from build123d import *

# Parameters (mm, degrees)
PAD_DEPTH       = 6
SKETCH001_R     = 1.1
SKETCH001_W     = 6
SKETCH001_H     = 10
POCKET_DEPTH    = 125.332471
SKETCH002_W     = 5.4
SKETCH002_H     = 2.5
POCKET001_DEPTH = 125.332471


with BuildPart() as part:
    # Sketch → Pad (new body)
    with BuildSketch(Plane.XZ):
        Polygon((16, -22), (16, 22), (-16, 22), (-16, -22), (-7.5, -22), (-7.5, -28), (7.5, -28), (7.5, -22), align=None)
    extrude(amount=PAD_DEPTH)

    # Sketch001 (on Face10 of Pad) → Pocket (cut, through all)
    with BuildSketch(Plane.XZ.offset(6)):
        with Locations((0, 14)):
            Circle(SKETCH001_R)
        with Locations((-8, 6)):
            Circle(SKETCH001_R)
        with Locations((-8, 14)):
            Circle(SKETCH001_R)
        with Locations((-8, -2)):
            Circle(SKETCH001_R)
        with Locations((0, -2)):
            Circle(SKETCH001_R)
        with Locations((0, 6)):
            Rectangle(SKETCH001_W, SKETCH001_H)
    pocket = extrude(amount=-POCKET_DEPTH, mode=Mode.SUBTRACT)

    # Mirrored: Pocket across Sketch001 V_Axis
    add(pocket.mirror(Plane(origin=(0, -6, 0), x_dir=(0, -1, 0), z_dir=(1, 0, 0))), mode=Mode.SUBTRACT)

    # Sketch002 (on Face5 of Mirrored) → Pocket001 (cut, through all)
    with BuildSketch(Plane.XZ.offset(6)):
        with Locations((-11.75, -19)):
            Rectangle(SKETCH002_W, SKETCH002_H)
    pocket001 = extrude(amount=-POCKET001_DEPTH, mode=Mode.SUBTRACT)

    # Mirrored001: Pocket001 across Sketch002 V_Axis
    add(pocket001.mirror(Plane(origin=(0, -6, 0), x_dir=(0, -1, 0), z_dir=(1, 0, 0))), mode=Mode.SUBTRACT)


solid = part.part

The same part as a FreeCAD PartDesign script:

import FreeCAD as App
import Part
import Sketcher

V = App.Vector

doc = App.newDocument("Part")
body = doc.addObject("PartDesign::Body", "Body")

# Sketch on XZ plane
sketch1 = body.newObject("Sketcher::SketchObject", "Sketch")
sketch1.AttachmentSupport = (doc.getObject("XZ_Plane"), [""])
sketch1.MapMode = "FlatFace"
sketch1.addGeometry(Part.LineSegment(V(16, -22, 0), V(16, 22, 0)), False)
sketch1.addGeometry(Part.LineSegment(V(16, 22, 0), V(-16, 22, 0)), False)
sketch1.addGeometry(Part.LineSegment(V(-16, 22, 0), V(-16, -22, 0)), False)
sketch1.addGeometry(Part.LineSegment(V(-16, -22, 0), V(-8, -22, 0)), False)
sketch1.addGeometry(Part.LineSegment(V(-8, -22, 0), V(-8, -28, 0)), False)
sketch1.addGeometry(Part.LineSegment(V(-8, -28, 0), V(8, -28, 0)), False)
sketch1.addGeometry(Part.LineSegment(V(8, -28, 0), V(8, -22, 0)), False)
sketch1.addGeometry(Part.LineSegment(V(8, -22, 0), V(16, -22, 0)), False)
sketch1.addConstraint(Sketcher.Constraint("Coincident", 0, 2, 1, 1))
sketch1.addConstraint(Sketcher.Constraint("Coincident", 1, 2, 2, 1))
sketch1.addConstraint(Sketcher.Constraint("Coincident", 2, 2, 3, 1))
sketch1.addConstraint(Sketcher.Constraint("Coincident", 3, 2, 4, 1))
sketch1.addConstraint(Sketcher.Constraint("Coincident", 4, 2, 5, 1))
sketch1.addConstraint(Sketcher.Constraint("Coincident", 5, 2, 6, 1))
sketch1.addConstraint(Sketcher.Constraint("Coincident", 6, 2, 7, 1))
sketch1.addConstraint(Sketcher.Constraint("Coincident", 7, 2, 0, 1))
sketch1.addConstraint(Sketcher.Constraint("Vertical", 0))
sketch1.addConstraint(Sketcher.Constraint("Horizontal", 1))
sketch1.addConstraint(Sketcher.Constraint("Vertical", 2))
sketch1.addConstraint(Sketcher.Constraint("Horizontal", 3))
sketch1.addConstraint(Sketcher.Constraint("Vertical", 4))
sketch1.addConstraint(Sketcher.Constraint("Horizontal", 5))
sketch1.addConstraint(Sketcher.Constraint("Vertical", 6))
sketch1.addConstraint(Sketcher.Constraint("Horizontal", 7))
sketch1.addConstraint(Sketcher.Constraint("Symmetric", 0, 2, 2, 2, -1, 1))
sketch1.addConstraint(Sketcher.Constraint("Symmetric", 3, 2, 6, 2, -2))
sketch1.addConstraint(Sketcher.Constraint("DistanceX", 1, 2, 1, 1, 32.0))
sketch1.addConstraint(Sketcher.Constraint("DistanceX", 5, 1, 5, 2, 15.0))
sketch1.addConstraint(Sketcher.Constraint("DistanceY", 0, 1, 0, 2, 44.0))
sketch1.addConstraint(Sketcher.Constraint("DistanceY", 4, 2, 4, 1, 6.0))
pad1 = body.newObject("PartDesign::Pad", "Pad")
pad1.Profile = sketch1
pad1.Length = 6

# Sketch on XZ plane
sketch2 = body.newObject("Sketcher::SketchObject", "Sketch001")
sketch2.AttachmentSupport = (doc.getObject("XZ_Plane"), [""])
sketch2.MapMode = "FlatFace"
sketch2.AttachmentOffset = App.Placement(V(0, 0, 6), App.Rotation())
sketch2.addGeometry(Part.Circle(V(0, 14, 0), V(0, 0, 1), 1.1), False)
sketch2.addGeometry(Part.Circle(V(-8, 6, 0), V(0, 0, 1), 1.1), False)
sketch2.addGeometry(Part.Circle(V(-8, 14, 0), V(0, 0, 1), 1.1), False)
sketch2.addGeometry(Part.Circle(V(-8, -2, 0), V(0, 0, 1), 1.1), False)
sketch2.addGeometry(Part.Circle(V(0, -2, 0), V(0, 0, 1), 1.1), False)
sketch2.addGeometry(Part.LineSegment(V(-3, 11, 0), V(-3, 1, 0)), False)
sketch2.addGeometry(Part.LineSegment(V(-3, 1, 0), V(3, 1, 0)), False)
sketch2.addGeometry(Part.LineSegment(V(3, 1, 0), V(3, 11, 0)), False)
sketch2.addGeometry(Part.LineSegment(V(3, 11, 0), V(-3, 11, 0)), False)
sketch2.addConstraint(Sketcher.Constraint("Coincident", 5, 2, 6, 1))
sketch2.addConstraint(Sketcher.Constraint("Coincident", 6, 2, 7, 1))
sketch2.addConstraint(Sketcher.Constraint("Coincident", 7, 2, 8, 1))
sketch2.addConstraint(Sketcher.Constraint("Coincident", 8, 2, 5, 1))
sketch2.addConstraint(Sketcher.Constraint("Vertical", 5))
sketch2.addConstraint(Sketcher.Constraint("Horizontal", 6))
sketch2.addConstraint(Sketcher.Constraint("Vertical", 7))
sketch2.addConstraint(Sketcher.Constraint("Horizontal", 8))
sketch2.addConstraint(Sketcher.Constraint("Equal", 0, 1))
sketch2.addConstraint(Sketcher.Constraint("Equal", 1, 2))
sketch2.addConstraint(Sketcher.Constraint("Equal", 2, 3))
sketch2.addConstraint(Sketcher.Constraint("Equal", 3, 4))
sketch2.addConstraint(Sketcher.Constraint("PointOnObject", 0, 3, -2))
sketch2.addConstraint(Sketcher.Constraint("PointOnObject", 4, 3, -2))
sketch2.addConstraint(Sketcher.Constraint("Horizontal", 0, 3, 2, 3))
sketch2.addConstraint(Sketcher.Constraint("Horizontal", 3, 3, 4, 3))
sketch2.addConstraint(Sketcher.Constraint("Vertical", 1, 3, 2, 3))
sketch2.addConstraint(Sketcher.Constraint("Vertical", 2, 3, 3, 3))
sketch2.addConstraint(Sketcher.Constraint("Diameter", 0, 2.2))
sketch2.addConstraint(Sketcher.Constraint("DistanceX", 6, 1, 6, 2, 6.0))
sketch2.addConstraint(Sketcher.Constraint("DistanceY", 5, 2, 5, 1, 10.0))
sketch2.addConstraint(Sketcher.Constraint("DistanceY", -1, 1, 0, 3, 14.0))
sketch2.addConstraint(Sketcher.Constraint("DistanceX", 1, 3, -1, 1, 8.0))
sketch2.addConstraint(Sketcher.Constraint("DistanceY", -1, 1, 1, 3, 6.0))
sketch2.addConstraint(Sketcher.Constraint("DistanceY", 3, 3, -1, 1, 2.0))
sketch2.addConstraint(Sketcher.Constraint("DistanceX", 5, 2, -1, 1, 3.0))
sketch2.addConstraint(Sketcher.Constraint("DistanceY", -1, 1, 5, 2, 1.0))
pocket1 = body.newObject("PartDesign::Pocket", "Pocket")
pocket1.Profile = sketch2
pocket1.Type = "ThroughAll"
doc.recompute()

mirrored = body.newObject("PartDesign::Mirrored", "Mirrored")
mirrored.Originals = [pocket1]
mirrored.MirrorPlane = (doc.getObject("YZ_Plane"), [""])
body.Tip = mirrored

# Sketch on XZ plane
sketch3 = body.newObject("Sketcher::SketchObject", "Sketch002")
sketch3.AttachmentSupport = (doc.getObject("XZ_Plane"), [""])
sketch3.MapMode = "FlatFace"
sketch3.AttachmentOffset = App.Placement(V(0, 0, 6), App.Rotation())
sketch3.addGeometry(Part.LineSegment(V(-14.4, -17.8, 0), V(-14.4, -20.2, 0)), False)
sketch3.addGeometry(Part.LineSegment(V(-14.4, -20.2, 0), V(-9.1, -20.2, 0)), False)
sketch3.addGeometry(Part.LineSegment(V(-9.1, -20.2, 0), V(-9.1, -17.8, 0)), False)
sketch3.addGeometry(Part.LineSegment(V(-9.1, -17.8, 0), V(-14.4, -17.8, 0)), False)
sketch3.addConstraint(Sketcher.Constraint("Coincident", 0, 2, 1, 1))
sketch3.addConstraint(Sketcher.Constraint("Coincident", 1, 2, 2, 1))
sketch3.addConstraint(Sketcher.Constraint("Coincident", 2, 2, 3, 1))
sketch3.addConstraint(Sketcher.Constraint("Coincident", 3, 2, 0, 1))
sketch3.addConstraint(Sketcher.Constraint("Vertical", 0))
sketch3.addConstraint(Sketcher.Constraint("Horizontal", 1))
sketch3.addConstraint(Sketcher.Constraint("Vertical", 2))
sketch3.addConstraint(Sketcher.Constraint("Horizontal", 3))
sketch3.addConstraint(Sketcher.Constraint("DistanceX", 1, 1, 1, 2, 5.4))
sketch3.addConstraint(Sketcher.Constraint("DistanceY", 0, 2, 0, 1, 2.5))
sketch3.addConstraint(Sketcher.Constraint("DistanceX", 0, 2, -1, 1, 14.45))
sketch3.addConstraint(Sketcher.Constraint("DistanceY", 0, 2, -1, 1, 20.25))
pocket2 = body.newObject("PartDesign::Pocket", "Pocket001")
pocket2.Profile = sketch3
pocket2.Type = "ThroughAll"
doc.recompute()

mirrored2 = body.newObject("PartDesign::Mirrored", "Mirrored001")
mirrored2.Originals = [pocket2]
mirrored2.MirrorPlane = (doc.getObject("YZ_Plane"), [""])
body.Tip = mirrored2

doc.recompute()
